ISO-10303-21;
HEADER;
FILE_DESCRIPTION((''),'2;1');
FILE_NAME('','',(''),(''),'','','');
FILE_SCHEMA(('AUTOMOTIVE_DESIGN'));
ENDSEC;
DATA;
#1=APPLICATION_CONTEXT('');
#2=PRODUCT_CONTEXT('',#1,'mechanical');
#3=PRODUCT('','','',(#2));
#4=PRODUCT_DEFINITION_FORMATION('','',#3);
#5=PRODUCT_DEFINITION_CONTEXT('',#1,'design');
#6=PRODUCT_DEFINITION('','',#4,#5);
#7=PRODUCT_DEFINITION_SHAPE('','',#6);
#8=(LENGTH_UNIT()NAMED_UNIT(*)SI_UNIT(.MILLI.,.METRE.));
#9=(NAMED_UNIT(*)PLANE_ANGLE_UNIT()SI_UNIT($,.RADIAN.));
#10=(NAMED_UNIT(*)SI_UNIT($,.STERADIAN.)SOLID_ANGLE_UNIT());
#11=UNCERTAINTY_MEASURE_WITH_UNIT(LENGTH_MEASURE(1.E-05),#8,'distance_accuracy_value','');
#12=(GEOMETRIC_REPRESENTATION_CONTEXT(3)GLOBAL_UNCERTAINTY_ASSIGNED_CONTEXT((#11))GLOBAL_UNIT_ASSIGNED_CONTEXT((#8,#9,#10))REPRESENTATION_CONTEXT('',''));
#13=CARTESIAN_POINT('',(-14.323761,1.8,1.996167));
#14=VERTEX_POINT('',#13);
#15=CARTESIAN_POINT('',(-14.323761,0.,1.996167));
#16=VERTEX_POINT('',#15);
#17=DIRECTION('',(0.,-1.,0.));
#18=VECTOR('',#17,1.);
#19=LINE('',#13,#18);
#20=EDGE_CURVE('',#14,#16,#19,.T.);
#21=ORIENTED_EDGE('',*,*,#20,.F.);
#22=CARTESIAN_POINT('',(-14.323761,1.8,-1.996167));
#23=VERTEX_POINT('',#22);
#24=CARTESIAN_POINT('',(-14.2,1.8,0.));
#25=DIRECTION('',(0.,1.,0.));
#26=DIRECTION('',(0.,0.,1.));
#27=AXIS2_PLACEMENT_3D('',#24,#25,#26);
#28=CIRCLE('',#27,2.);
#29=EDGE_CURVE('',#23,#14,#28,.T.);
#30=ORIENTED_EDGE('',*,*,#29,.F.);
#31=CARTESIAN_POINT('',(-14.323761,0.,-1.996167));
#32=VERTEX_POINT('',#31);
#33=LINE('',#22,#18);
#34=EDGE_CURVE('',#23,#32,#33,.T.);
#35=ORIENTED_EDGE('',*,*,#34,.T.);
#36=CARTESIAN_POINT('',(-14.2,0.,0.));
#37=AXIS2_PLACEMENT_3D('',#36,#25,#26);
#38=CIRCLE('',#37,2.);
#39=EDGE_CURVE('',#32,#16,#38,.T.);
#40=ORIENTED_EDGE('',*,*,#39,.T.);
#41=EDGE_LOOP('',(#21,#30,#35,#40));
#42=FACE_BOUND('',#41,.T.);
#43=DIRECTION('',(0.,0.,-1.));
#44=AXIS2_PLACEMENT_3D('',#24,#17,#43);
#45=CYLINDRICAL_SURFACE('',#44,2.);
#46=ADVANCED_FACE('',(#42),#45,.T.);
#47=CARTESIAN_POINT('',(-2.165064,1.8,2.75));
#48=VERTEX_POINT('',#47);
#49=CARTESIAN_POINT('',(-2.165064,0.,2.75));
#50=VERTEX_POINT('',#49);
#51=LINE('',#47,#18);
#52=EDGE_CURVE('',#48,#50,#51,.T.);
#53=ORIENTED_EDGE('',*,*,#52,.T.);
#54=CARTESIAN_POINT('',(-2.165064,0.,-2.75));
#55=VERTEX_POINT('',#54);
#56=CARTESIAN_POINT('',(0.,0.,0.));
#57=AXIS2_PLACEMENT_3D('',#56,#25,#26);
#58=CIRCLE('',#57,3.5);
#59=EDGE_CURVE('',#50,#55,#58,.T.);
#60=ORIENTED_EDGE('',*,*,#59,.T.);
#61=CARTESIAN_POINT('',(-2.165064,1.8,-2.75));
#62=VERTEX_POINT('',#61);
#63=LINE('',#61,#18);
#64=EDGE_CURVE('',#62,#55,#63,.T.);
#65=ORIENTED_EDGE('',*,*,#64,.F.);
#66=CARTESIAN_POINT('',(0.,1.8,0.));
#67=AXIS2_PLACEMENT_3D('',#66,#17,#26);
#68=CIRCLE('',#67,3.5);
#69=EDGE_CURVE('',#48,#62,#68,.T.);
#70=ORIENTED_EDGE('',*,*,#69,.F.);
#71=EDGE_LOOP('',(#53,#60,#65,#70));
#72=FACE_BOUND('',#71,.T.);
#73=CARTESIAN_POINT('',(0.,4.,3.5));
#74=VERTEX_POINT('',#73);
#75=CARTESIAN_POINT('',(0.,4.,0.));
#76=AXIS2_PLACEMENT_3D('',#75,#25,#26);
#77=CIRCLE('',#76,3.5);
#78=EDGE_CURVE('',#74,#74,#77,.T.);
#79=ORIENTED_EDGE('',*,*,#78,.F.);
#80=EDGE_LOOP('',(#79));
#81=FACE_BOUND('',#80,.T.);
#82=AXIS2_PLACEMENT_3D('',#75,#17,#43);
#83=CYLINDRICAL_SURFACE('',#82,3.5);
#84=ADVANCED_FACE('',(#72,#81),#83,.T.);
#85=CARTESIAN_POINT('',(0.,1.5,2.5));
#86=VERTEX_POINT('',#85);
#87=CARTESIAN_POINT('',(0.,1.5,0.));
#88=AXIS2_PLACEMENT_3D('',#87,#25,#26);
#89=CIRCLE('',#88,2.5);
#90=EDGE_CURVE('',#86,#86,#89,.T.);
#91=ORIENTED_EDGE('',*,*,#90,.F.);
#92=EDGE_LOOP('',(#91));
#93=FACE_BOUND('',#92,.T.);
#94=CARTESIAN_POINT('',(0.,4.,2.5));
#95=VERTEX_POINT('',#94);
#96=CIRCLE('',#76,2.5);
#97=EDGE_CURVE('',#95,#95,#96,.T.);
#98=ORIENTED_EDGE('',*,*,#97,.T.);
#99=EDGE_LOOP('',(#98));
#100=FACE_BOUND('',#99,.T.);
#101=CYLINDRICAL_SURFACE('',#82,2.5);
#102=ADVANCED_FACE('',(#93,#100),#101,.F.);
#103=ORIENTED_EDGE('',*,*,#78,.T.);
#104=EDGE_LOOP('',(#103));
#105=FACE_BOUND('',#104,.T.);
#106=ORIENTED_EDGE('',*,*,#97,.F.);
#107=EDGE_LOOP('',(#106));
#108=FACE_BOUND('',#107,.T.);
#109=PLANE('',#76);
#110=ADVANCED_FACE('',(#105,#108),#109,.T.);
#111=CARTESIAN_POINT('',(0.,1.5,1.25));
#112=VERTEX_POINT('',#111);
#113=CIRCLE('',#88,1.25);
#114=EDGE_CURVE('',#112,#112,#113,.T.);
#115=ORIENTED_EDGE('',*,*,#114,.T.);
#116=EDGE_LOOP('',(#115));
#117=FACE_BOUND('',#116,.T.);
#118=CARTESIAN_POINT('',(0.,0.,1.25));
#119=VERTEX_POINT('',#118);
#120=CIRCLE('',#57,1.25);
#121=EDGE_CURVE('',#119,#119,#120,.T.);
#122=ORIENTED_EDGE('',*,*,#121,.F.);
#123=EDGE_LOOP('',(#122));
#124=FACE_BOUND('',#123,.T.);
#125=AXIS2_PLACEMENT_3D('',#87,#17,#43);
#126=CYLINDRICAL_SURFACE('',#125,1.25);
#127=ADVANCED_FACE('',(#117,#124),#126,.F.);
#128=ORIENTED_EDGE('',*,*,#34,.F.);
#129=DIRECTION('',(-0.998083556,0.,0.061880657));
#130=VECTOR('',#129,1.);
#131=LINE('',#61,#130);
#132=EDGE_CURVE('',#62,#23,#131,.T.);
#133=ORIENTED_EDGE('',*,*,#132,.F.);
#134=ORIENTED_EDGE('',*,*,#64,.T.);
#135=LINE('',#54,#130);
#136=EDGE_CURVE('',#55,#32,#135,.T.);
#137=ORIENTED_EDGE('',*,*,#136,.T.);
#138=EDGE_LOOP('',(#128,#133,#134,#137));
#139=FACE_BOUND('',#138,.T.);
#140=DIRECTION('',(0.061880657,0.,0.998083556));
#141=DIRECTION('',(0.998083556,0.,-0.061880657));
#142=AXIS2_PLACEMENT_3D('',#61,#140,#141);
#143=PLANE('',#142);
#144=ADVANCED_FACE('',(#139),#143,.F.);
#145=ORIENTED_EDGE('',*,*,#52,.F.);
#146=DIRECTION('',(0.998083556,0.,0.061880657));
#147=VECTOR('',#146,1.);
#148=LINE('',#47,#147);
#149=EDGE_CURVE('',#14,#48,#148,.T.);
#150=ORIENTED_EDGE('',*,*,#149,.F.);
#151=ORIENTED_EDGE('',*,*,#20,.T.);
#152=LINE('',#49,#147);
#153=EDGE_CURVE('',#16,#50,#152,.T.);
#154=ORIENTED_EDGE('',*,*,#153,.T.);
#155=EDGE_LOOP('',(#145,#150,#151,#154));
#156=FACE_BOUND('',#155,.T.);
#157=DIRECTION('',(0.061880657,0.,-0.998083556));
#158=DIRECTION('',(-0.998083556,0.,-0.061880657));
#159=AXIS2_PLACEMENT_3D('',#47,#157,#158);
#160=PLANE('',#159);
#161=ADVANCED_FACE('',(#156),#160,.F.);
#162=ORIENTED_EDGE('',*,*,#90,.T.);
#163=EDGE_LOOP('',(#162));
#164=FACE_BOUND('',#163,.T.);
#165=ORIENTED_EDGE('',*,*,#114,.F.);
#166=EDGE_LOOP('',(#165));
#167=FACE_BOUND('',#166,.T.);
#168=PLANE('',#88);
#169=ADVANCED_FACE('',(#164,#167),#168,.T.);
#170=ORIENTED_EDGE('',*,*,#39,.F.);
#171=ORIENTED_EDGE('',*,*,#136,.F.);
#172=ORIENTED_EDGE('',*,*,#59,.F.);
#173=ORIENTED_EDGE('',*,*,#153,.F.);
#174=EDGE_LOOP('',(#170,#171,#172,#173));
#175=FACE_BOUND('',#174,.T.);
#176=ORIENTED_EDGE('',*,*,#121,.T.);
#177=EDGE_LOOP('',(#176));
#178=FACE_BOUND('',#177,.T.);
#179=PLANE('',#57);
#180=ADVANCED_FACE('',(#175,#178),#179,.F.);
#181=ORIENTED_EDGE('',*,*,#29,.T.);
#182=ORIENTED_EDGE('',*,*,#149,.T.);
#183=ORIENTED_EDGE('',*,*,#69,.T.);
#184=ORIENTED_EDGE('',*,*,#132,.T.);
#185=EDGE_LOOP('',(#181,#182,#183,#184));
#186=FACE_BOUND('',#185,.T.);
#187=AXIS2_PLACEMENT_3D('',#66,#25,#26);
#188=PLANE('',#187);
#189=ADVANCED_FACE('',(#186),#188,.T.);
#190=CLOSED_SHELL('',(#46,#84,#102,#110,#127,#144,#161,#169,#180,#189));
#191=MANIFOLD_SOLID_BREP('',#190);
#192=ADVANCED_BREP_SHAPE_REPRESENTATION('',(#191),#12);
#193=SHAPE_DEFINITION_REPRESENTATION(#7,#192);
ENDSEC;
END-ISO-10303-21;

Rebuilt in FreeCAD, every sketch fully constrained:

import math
import FreeCAD as App
import Part
import Sketcher
Q = App.Units.Quantity

doc = App.newDocument("Part")
body = doc.addObject("PartDesign::Body", "Body")

# Sketch on XZ plane
sketch1 = doc.addObject("Sketcher::SketchObject", "Sketch")
body.addObject(sketch1)
sketch1.AttachmentSupport = (doc.XZ_Plane, [""])
sketch1.MapMode = "FlatFace"
sketch1.addGeometry(Part.Circle(App.Vector(0, 0, 0), App.Vector(0, 0, 1), 3.5), False)
sketch1.addGeometry(Part.Circle(App.Vector(0, 0, 0), App.Vector(0, 0, 1), 2.5), False)
sketch1.addConstraint(Sketcher.Constraint("Coincident", 0, 3, -1, 1))
sketch1.addConstraint(Sketcher.Constraint("Coincident", 1, 3, -1, 1))
sketch1.addConstraint(Sketcher.Constraint("Diameter", 0, Q("7 mm")))
sketch1.addConstraint(Sketcher.Constraint("Diameter", 1, Q("5 mm")))
pad1 = doc.addObject("PartDesign::Pad", "Pad")
body.addObject(pad1)
pad1.Profile = sketch1
pad1.Length = 4
pad1.Reversed = True

# Sketch on XZ plane
sketch2 = doc.addObject("Sketcher::SketchObject", "Sketch001")
body.addObject(sketch2)
sketch2.AttachmentSupport = (doc.XZ_Plane, [""])
sketch2.MapMode = "FlatFace"
sketch2.addGeometry(Part.LineSegment(App.Vector(-2.2, -2.8, 0), App.Vector(-14.3, -2, 0)), False)
sketch2.addGeometry(Part.ArcOfCircle(Part.Circle(App.Vector(-14.2, 0, 0), App.Vector(0, 0, 1), 2), math.radians(94), math.radians(266)), False)
sketch2.addGeometry(Part.LineSegment(App.Vector(-14.3, 2, 0), App.Vector(-2.2, 2.8, 0)), False)
sketch2.addGeometry(Part.ArcOfCircle(Part.Circle(App.Vector(0, 0, 0), App.Vector(0, 0, 1), 3.5), math.radians(128), math.radians(232)), False)
sketch2.addConstraint(Sketcher.Constraint("Tangent", 0, 2, 1, 2))
sketch2.addConstraint(Sketcher.Constraint("Tangent", 1, 1, 2, 1))
sketch2.addConstraint(Sketcher.Constraint("Coincident", 2, 2, 3, 1))
sketch2.addConstraint(Sketcher.Constraint("Coincident", 3, 2, 0, 1))
sketch2.addConstraint(Sketcher.Constraint("Coincident", 3, 3, -1, 1))
sketch2.addConstraint(Sketcher.Constraint("Symmetric", 0, 2, 1, 1, -1))
sketch2.addConstraint(Sketcher.Constraint("Radius", 1, Q("2 mm")))
sketch2.addConstraint(Sketcher.Constraint("Radius", 3, Q("3.5 mm")))
sketch2.addConstraint(Sketcher.Constraint("DistanceX", 1, 3, -1, 1, Q("14.2 mm")))
sketch2.addConstraint(Sketcher.Constraint("DistanceY", 3, 2, 2, 2, Q("5.5 mm")))
pad2 = doc.addObject("PartDesign::Pad", "Pad001")
body.addObject(pad2)
pad2.Profile = sketch2
pad2.Length = 1.8
pad2.Reversed = True

# Sketch on XZ plane
sketch3 = doc.addObject("Sketcher::SketchObject", "Sketch002")
body.addObject(sketch3)
sketch3.AttachmentSupport = (doc.XZ_Plane, [""])
sketch3.MapMode = "FlatFace"
sketch3.addGeometry(Part.Circle(App.Vector(0, 0, 0), App.Vector(0, 0, 1), 2.5), False)
sketch3.addGeometry(Part.Circle(App.Vector(0, 0, 0), App.Vector(0, 0, 1), 1.2), False)
sketch3.addConstraint(Sketcher.Constraint("Coincident", 0, 3, -1, 1))
sketch3.addConstraint(Sketcher.Constraint("Coincident", 1, 3, -1, 1))
sketch3.addConstraint(Sketcher.Constraint("Diameter", 0, Q("5 mm")))
sketch3.addConstraint(Sketcher.Constraint("Diameter", 1, Q("2.5 mm")))
pad3 = doc.addObject("PartDesign::Pad", "Pad002")
body.addObject(pad3)
pad3.Profile = sketch3
pad3.Length = 1.5
pad3.Reversed = True

doc.recompute()
